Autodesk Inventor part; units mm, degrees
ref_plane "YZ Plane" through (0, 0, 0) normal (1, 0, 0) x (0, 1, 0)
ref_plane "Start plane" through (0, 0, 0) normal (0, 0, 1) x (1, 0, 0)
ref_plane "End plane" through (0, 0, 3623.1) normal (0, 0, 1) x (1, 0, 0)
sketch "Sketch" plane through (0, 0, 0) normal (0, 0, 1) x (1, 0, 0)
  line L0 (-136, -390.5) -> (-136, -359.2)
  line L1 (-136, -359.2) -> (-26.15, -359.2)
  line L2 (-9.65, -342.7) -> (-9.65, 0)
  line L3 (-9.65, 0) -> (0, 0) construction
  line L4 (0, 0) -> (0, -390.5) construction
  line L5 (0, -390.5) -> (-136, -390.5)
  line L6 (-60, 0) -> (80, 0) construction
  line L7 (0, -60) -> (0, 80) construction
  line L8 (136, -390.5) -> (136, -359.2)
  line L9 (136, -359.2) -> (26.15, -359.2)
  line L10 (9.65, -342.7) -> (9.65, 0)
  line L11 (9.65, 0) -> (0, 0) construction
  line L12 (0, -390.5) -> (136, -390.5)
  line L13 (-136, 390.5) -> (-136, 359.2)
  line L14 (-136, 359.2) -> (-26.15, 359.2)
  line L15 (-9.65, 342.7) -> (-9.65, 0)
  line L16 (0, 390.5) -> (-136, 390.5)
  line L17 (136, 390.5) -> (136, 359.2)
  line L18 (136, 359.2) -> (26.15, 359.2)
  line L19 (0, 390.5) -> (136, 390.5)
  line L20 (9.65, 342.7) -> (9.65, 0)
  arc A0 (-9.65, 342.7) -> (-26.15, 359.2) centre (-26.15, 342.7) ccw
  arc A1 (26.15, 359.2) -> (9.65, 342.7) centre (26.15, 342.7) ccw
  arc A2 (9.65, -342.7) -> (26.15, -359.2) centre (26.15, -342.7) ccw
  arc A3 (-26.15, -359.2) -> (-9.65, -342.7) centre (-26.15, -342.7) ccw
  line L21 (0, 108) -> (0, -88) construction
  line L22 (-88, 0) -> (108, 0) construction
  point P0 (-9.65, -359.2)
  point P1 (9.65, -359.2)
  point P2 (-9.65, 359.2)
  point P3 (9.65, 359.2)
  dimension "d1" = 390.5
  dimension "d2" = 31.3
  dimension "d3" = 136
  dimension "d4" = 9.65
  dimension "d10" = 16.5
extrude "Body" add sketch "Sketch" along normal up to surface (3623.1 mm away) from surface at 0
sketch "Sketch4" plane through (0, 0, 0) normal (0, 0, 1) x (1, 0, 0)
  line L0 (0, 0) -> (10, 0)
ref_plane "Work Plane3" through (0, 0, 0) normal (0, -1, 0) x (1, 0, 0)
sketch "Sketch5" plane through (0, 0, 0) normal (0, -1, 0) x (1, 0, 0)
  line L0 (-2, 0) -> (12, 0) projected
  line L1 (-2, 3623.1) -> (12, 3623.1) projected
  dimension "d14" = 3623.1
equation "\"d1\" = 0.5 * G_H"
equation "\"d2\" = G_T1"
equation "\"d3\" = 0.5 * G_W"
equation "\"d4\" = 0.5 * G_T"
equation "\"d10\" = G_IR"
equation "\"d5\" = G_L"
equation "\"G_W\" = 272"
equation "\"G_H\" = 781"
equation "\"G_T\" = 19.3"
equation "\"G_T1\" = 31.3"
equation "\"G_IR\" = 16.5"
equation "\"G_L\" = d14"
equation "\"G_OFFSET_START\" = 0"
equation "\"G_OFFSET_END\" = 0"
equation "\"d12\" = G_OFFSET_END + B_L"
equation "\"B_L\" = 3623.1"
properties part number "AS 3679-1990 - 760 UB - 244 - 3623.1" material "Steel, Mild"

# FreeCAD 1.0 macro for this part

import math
import FreeCAD as App
import Part
import Sketcher

doc = App.newDocument("Part")
body = doc.addObject("PartDesign::Body", "Body")

sketch1 = body.newObject("Sketcher::SketchObject", "Sketch")
sketch1.AttachmentSupport = (doc.getObject("XY_Plane"), [""])
sketch1.MapMode = "FlatFace"
sketch1.addGeometry(Part.LineSegment(App.Vector(-136, -359, 0), App.Vector(-136, -390, 0)), False)
sketch1.addGeometry(Part.LineSegment(App.Vector(-136, -390, 0), App.Vector(136, -390, 0)), False)
sketch1.addGeometry(Part.LineSegment(App.Vector(136, -390, 0), App.Vector(136, -359, 0)), False)
sketch1.addGeometry(Part.LineSegment(App.Vector(136, -359, 0), App.Vector(26, -359, 0)), False)
sketch1.addGeometry(Part.ArcOfCircle(Part.Circle(App.Vector(26, -343, 0), App.Vector(0, 0, 1), 16), math.radians(180), math.radians(270)), False)
sketch1.addGeometry(Part.LineSegment(App.Vector(10, -343, 0), App.Vector(10, 343, 0)), False)
sketch1.addGeometry(Part.ArcOfCircle(Part.Circle(App.Vector(26, 343, 0), App.Vector(0, 0, 1), 16), math.radians(90), math.radians(180)), False)
sketch1.addGeometry(Part.LineSegment(App.Vector(26, 359, 0), App.Vector(136, 359, 0)), False)
sketch1.addGeometry(Part.LineSegment(App.Vector(136, 359, 0), App.Vector(136, 390, 0)), False)
sketch1.addGeometry(Part.LineSegment(App.Vector(136, 390, 0), App.Vector(-136, 390, 0)), False)
sketch1.addGeometry(Part.LineSegment(App.Vector(-136, 390, 0), App.Vector(-136, 359, 0)), False)
sketch1.addGeometry(Part.LineSegment(App.Vector(-136, 359, 0), App.Vector(-26, 359, 0)), False)
sketch1.addGeometry(Part.ArcOfCircle(Part.Circle(App.Vector(-26, 343, 0), App.Vector(0, 0, 1), 16), math.radians(0), math.radians(90)), False)
sketch1.addGeometry(Part.LineSegment(App.Vector(-10, 343, 0), App.Vector(-10, -343, 0)), False)
sketch1.addGeometry(Part.ArcOfCircle(Part.Circle(App.Vector(-26, -343, 0), App.Vector(0, 0, 1), 16), math.radians(-90), math.radians(0)), False)
sketch1.addGeometry(Part.LineSegment(App.Vector(-26, -359, 0), App.Vector(-136, -359, 0)), False)
sketch1.addConstraint(Sketcher.Constraint("Coincident", 0, 2, 1, 1))
sketch1.addConstraint(Sketcher.Constraint("Coincident", 1, 2, 2, 1))
sketch1.addConstraint(Sketcher.Constraint("Coincident", 2, 2, 3, 1))
sketch1.addConstraint(Sketcher.Constraint("Tangent", 3, 2, 4, 2))
sketch1.addConstraint(Sketcher.Constraint("Tangent", 4, 1, 5, 1))
sketch1.addConstraint(Sketcher.Constraint("Tangent", 5, 2, 6, 2))
sketch1.addConstraint(Sketcher.Constraint("Tangent", 6, 1, 7, 1))
sketch1.addConstraint(Sketcher.Constraint("Coincident", 7, 2, 8, 1))
sketch1.addConstraint(Sketcher.Constraint("Coincident", 8, 2, 9, 1))
sketch1.addConstraint(Sketcher.Constraint("Coincident", 9, 2, 10, 1))
sketch1.addConstraint(Sketcher.Constraint("Coincident", 10, 2, 11, 1))
sketch1.addConstraint(Sketcher.Constraint("Tangent", 11, 2, 12, 2))
sketch1.addConstraint(Sketcher.Constraint("Tangent", 12, 1, 13, 1))
sketch1.addConstraint(Sketcher.Constraint("Tangent", 13, 2, 14, 2))
sketch1.addConstraint(Sketcher.Constraint("Tangent", 14, 1, 15, 1))
sketch1.addConstraint(Sketcher.Constraint("Coincident", 15, 2, 0, 1))
sketch1.addConstraint(Sketcher.Constraint("Vertical", 0))
sketch1.addConstraint(Sketcher.Constraint("Horizontal", 1))
sketch1.addConstraint(Sketcher.Constraint("Vertical", 2))
sketch1.addConstraint(Sketcher.Constraint("Horizontal", 3))
sketch1.addConstraint(Sketcher.Constraint("Vertical", 5))
sketch1.addConstraint(Sketcher.Constraint("Horizontal", 7))
sketch1.addConstraint(Sketcher.Constraint("Vertical", 8))
sketch1.addConstraint(Sketcher.Constraint("Horizontal", 9))
sketch1.addConstraint(Sketcher.Constraint("Vertical", 10))
sketch1.addConstraint(Sketcher.Constraint("Horizontal", 11))
sketch1.addConstraint(Sketcher.Constraint("Vertical", 13))
sketch1.addConstraint(Sketcher.Constraint("Horizontal", 15))
sketch1.addConstraint(Sketcher.Constraint("Equal", 4, 6))
sketch1.addConstraint(Sketcher.Constraint("Equal", 6, 12))
sketch1.addConstraint(Sketcher.Constraint("Equal", 12, 14))
sketch1.addConstraint(Sketcher.Constraint("Symmetric", 4, 3, 12, 3, -1, 1))
sketch1.addConstraint(Sketcher.Constraint("Symmetric", 0, 2, 8, 2, -1, 1))
sketch1.addConstraint(Sketcher.Constraint("Symmetric", 7, 2, 10, 2, -2))
sketch1.addConstraint(Sketcher.Constraint("Symmetric", 2, 2, 15, 2, -2))
sketch1.addConstraint(Sketcher.Constraint("Radius", 4, 16.5))
sketch1.addConstraint(Sketcher.Constraint("DistanceY", 0, 2, 0, 1, 31.3))
sketch1.addConstraint(Sketcher.Constraint("DistanceX", 0, 2, -1, 1, 136.0))
sketch1.addConstraint(Sketcher.Constraint("DistanceY", 0, 2, -1, 1, 390.5))
sketch1.addConstraint(Sketcher.Constraint("DistanceX", -1, 1, 4, 1, 9.65))
pad1 = body.newObject("PartDesign::Pad", "Pad")
pad1.Profile = sketch1
pad1.Length = 3623.1

doc.recompute()
